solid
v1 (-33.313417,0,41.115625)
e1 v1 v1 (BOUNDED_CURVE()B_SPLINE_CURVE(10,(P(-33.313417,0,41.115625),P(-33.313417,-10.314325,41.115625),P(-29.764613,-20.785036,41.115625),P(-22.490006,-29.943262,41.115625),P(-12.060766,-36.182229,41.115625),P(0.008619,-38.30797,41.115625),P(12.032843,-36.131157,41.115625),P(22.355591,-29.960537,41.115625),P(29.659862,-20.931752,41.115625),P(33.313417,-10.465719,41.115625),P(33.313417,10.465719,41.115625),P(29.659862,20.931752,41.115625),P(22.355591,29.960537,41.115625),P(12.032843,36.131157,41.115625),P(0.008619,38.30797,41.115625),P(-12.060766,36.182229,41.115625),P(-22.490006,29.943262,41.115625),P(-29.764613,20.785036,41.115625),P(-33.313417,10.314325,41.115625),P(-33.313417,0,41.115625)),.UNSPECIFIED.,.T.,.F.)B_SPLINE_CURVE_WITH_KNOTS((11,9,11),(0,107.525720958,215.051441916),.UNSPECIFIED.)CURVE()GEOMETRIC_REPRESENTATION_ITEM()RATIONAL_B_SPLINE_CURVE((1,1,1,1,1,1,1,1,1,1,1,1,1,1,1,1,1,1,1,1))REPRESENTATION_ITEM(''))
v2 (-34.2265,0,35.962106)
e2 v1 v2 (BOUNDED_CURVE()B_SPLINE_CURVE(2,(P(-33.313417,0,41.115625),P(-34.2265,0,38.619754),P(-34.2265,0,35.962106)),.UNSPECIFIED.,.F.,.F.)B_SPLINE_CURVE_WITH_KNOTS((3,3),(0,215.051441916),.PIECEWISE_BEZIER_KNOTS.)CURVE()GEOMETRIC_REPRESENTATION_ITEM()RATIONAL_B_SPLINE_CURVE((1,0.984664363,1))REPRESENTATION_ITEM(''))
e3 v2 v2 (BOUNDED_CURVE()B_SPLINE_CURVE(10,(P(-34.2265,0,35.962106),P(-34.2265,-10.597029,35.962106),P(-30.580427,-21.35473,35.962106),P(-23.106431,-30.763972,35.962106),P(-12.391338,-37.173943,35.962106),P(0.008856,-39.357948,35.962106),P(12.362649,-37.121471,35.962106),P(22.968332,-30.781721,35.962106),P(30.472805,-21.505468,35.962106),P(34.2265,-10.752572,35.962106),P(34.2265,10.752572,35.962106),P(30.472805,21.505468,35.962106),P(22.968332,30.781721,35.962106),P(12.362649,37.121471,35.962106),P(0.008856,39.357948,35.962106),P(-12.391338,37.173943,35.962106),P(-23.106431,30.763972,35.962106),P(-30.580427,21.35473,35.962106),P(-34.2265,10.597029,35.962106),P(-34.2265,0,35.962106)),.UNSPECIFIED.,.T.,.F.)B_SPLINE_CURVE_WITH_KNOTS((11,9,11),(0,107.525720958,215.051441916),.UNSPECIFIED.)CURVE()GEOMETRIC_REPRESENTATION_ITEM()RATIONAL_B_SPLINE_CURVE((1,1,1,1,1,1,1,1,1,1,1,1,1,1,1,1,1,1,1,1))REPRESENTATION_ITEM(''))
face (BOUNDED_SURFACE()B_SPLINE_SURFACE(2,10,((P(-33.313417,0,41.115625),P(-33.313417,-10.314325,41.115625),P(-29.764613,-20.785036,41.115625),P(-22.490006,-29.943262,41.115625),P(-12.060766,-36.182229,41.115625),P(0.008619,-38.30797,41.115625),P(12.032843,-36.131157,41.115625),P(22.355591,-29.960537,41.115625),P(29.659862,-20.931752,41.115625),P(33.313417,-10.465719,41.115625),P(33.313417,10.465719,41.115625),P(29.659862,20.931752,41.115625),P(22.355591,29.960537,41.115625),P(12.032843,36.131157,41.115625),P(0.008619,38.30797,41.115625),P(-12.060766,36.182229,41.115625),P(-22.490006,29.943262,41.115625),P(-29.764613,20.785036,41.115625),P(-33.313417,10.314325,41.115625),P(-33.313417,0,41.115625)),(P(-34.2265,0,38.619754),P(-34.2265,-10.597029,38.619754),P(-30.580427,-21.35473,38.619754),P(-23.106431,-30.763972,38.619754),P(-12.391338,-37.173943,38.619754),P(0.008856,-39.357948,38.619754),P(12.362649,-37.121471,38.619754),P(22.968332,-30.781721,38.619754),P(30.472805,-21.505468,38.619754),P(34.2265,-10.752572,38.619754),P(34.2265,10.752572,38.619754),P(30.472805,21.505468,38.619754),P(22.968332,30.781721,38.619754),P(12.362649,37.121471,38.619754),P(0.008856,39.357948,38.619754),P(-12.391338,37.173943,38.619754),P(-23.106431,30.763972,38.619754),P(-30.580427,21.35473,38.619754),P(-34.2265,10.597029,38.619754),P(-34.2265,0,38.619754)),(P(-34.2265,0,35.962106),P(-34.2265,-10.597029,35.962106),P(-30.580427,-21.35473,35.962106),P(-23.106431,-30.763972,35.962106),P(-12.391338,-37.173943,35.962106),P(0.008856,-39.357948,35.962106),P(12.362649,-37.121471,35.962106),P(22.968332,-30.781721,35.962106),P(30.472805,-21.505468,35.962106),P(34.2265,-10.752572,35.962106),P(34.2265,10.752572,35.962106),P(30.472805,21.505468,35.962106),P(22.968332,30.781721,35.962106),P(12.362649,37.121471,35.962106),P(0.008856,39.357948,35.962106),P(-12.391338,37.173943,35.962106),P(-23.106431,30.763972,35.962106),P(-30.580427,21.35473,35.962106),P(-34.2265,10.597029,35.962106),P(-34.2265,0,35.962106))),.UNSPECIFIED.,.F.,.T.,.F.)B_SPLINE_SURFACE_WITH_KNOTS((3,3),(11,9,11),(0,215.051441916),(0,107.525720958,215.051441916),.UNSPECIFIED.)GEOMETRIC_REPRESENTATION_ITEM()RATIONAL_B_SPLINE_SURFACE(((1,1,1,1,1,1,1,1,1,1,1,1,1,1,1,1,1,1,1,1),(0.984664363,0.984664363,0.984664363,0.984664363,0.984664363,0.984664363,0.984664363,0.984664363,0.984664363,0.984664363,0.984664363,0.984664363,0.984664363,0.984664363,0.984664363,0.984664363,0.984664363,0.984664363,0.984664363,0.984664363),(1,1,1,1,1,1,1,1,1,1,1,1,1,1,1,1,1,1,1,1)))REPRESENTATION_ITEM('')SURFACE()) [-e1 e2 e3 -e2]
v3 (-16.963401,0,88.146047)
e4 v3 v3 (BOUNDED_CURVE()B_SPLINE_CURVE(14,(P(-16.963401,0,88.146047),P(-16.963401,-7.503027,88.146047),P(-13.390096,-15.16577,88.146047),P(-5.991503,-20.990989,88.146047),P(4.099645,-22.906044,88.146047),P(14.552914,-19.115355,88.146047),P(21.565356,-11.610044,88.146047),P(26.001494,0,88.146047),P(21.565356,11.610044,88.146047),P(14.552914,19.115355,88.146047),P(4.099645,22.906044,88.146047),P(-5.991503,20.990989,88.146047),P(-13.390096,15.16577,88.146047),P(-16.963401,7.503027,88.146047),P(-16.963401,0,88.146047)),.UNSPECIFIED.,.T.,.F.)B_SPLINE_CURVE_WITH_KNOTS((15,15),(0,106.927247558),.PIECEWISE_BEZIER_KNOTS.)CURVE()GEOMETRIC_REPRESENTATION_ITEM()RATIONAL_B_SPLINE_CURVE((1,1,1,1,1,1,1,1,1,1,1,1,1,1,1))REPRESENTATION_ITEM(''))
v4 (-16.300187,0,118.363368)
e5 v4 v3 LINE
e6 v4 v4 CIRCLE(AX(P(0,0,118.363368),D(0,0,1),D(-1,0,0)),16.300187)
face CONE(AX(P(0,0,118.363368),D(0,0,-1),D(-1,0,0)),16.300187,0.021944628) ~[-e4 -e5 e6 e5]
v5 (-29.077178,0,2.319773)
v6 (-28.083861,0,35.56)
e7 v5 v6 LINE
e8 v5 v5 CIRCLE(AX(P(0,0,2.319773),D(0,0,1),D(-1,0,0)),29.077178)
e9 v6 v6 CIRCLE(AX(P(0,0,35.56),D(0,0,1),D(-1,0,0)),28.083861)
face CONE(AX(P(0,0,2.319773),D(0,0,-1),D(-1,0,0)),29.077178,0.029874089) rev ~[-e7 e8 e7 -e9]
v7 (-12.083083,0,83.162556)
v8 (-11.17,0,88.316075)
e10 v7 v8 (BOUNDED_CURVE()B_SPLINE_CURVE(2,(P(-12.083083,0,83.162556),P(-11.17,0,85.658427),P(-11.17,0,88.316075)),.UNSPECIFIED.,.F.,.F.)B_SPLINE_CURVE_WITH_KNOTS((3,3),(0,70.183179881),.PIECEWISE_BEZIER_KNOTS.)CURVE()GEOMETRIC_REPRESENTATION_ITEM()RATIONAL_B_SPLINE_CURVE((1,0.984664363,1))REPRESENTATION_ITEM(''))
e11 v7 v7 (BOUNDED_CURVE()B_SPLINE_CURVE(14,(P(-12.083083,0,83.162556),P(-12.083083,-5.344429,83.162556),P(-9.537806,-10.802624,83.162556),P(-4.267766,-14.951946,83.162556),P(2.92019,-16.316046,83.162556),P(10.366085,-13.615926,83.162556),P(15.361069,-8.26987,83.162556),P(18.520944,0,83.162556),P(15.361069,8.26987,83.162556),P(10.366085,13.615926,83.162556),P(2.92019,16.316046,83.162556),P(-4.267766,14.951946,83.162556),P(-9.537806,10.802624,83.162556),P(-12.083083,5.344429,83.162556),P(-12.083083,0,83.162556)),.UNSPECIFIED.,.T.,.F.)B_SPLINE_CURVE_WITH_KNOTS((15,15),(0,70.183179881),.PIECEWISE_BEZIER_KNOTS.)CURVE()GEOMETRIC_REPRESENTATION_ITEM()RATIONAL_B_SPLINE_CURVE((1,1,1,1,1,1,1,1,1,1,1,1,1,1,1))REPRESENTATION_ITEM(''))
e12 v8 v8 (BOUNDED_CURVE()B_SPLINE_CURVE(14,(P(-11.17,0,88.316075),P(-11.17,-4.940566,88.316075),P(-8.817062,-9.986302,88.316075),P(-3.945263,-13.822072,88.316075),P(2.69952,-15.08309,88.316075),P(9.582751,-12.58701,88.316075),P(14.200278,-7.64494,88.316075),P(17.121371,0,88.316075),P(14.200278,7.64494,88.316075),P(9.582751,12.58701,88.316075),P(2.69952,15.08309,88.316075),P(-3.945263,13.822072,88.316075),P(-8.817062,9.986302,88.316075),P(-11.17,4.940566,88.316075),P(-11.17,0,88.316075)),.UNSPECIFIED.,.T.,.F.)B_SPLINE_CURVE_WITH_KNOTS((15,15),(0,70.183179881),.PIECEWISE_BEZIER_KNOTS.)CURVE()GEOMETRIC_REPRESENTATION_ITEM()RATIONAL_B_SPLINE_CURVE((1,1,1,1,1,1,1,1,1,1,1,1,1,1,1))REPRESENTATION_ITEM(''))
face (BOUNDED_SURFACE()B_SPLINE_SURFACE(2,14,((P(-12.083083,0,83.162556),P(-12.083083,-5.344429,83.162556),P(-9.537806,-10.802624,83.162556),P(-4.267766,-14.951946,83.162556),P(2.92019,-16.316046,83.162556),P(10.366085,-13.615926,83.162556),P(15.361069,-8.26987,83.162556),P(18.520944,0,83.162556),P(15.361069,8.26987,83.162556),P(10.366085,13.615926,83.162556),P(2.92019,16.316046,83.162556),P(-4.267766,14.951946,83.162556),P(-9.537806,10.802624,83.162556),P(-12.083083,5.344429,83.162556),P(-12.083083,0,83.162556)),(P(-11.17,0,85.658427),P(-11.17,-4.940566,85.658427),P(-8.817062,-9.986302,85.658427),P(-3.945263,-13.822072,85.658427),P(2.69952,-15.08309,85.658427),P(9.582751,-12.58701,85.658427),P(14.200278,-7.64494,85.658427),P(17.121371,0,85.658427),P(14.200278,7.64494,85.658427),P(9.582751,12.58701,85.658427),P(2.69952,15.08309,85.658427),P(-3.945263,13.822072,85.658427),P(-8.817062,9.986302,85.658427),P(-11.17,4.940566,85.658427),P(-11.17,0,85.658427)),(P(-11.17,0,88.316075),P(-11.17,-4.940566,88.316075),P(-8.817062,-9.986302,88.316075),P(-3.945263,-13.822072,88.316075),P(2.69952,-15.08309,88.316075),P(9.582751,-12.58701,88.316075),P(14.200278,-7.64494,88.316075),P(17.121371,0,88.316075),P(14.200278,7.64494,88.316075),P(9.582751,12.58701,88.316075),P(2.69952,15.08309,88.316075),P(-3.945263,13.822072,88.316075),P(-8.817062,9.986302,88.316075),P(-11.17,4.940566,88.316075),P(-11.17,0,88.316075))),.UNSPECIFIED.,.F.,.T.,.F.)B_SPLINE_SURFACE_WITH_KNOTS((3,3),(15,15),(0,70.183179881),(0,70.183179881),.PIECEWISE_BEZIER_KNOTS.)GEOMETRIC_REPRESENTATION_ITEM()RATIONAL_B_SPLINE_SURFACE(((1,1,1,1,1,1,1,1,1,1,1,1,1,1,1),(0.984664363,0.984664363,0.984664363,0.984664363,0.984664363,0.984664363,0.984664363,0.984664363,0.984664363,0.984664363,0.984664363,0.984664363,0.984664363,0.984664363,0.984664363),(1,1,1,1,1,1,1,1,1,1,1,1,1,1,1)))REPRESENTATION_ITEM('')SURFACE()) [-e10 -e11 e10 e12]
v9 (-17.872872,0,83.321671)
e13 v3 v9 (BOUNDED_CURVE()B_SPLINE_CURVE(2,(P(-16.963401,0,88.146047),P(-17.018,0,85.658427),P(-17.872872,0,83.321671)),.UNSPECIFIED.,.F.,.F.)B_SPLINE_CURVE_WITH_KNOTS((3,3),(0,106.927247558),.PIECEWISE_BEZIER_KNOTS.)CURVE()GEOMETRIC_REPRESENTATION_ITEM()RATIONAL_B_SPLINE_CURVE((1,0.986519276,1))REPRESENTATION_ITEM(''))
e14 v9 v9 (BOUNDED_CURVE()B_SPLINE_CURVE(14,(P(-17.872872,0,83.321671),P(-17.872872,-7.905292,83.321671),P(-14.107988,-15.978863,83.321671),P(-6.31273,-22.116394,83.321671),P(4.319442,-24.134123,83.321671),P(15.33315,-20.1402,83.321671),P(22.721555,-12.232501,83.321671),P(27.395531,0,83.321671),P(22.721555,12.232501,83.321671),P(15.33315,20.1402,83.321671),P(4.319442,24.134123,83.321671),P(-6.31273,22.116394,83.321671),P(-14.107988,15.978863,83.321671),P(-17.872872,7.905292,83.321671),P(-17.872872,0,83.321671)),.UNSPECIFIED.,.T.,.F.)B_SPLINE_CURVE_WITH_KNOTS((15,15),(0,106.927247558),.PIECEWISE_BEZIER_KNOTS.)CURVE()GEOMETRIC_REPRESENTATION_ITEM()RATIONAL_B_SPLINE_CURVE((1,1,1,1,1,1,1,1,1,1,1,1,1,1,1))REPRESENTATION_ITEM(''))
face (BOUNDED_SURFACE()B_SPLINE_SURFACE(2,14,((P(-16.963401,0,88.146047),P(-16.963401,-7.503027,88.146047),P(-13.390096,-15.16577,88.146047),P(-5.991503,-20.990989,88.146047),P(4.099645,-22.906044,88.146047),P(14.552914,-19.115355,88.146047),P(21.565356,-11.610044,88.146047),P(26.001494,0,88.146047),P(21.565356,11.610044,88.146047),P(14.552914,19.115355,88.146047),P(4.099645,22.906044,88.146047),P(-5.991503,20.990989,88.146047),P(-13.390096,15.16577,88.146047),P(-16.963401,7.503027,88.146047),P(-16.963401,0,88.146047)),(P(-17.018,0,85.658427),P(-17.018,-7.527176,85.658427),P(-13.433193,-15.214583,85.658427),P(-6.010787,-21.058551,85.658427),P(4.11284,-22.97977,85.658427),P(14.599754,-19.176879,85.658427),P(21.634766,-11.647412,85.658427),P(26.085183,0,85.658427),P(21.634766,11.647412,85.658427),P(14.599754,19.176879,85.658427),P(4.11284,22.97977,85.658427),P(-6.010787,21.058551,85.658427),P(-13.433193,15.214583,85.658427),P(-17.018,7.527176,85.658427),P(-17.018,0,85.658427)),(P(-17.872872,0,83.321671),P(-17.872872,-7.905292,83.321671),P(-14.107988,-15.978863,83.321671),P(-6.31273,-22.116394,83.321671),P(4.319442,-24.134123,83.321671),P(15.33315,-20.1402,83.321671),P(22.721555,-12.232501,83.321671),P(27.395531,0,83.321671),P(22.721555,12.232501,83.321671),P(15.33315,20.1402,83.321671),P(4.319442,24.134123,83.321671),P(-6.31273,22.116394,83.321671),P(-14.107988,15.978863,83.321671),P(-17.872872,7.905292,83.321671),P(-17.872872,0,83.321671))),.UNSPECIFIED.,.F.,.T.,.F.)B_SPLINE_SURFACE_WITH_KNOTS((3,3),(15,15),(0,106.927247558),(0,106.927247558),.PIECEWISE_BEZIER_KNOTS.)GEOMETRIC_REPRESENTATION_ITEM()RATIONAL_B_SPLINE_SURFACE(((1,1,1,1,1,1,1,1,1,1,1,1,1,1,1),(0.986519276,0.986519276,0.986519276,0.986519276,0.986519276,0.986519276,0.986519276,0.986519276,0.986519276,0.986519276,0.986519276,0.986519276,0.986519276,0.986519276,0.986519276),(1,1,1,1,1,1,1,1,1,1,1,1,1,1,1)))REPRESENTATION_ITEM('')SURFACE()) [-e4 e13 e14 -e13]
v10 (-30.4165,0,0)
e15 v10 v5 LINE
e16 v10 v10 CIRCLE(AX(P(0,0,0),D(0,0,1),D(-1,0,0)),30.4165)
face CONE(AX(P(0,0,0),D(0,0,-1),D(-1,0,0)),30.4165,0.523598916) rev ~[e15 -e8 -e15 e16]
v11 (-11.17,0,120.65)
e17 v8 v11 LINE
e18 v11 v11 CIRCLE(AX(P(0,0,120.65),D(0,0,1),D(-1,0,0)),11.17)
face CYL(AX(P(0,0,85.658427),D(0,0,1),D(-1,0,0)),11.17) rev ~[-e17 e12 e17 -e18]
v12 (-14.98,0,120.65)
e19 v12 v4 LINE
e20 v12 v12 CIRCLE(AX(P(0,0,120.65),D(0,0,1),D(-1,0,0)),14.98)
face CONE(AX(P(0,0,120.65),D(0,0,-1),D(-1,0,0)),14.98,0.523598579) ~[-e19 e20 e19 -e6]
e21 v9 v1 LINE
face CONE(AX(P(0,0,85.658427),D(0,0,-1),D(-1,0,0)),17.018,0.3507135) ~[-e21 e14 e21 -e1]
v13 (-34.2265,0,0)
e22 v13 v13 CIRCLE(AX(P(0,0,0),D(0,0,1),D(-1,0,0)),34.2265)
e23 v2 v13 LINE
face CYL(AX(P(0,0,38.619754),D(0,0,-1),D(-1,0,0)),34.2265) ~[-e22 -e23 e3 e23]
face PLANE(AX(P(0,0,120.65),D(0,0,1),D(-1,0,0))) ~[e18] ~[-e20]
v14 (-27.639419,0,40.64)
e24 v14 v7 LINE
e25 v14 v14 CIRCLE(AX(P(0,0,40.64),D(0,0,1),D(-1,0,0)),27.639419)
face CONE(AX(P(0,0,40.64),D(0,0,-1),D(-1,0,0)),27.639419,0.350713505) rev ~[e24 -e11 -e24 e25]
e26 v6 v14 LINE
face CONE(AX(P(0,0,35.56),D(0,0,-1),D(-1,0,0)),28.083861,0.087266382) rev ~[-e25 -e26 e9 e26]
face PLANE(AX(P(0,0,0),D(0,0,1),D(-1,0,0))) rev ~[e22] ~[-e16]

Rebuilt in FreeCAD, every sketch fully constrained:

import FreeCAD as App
import Part
import Sketcher
from FreeCAD import Vector
Q = App.Units.Quantity


def edges_at(feature, points):
    """Names of the edges that pass closest to the given points."""
    edges = feature.Shape.Edges
    near = lambda p: min(range(len(edges)), key=lambda i: edges[i].distToShape(Part.Vertex(*p))[0])
    return sorted({f"Edge{near(p) + 1}" for p in points})


def add_polygon(sketch, points):
    """Adds a closed chain of lines whose ends are joined by coincident constraints."""
    first, n = sketch.GeometryCount, len(points)
    for a, b in zip(points, points[1:] + points[:1]):
        sketch.addGeometry(Part.LineSegment(App.Vector(*a, 0), App.Vector(*b, 0)), False)
    for i in range(n):
        sketch.addConstraint(Sketcher.Constraint("Coincident", first + i, 2, first + (i + 1) % n, 1))

doc = App.newDocument("Part")
body = doc.addObject("PartDesign::Body", "Body")

# Sketch on XZ plane
sketch1 = doc.addObject("Sketcher::SketchObject", "Sketch")
body.addObject(sketch1)
sketch1.AttachmentSupport = (doc.XZ_Plane, [""])
sketch1.MapMode = "FlatFace"
add_polygon(sketch1, [(-34.2, 0), (-30.4, 0), (-29.1, 2.3), (-28.1, 35.6), (-27.6, 40.6), (-11.2, 85.7), (-11.2, 120.7), (-15, 120.7), (-16.3, 118.4), (-17, 85.7), (-34.2, 38.6)])  # lines 0-10
sketch1.addConstraint(Sketcher.Constraint("Horizontal", 0))
sketch1.addConstraint(Sketcher.Constraint("Vertical", 5))
sketch1.addConstraint(Sketcher.Constraint("Horizontal", 6))
sketch1.addConstraint(Sketcher.Constraint("Vertical", 10))
sketch1.addConstraint(Sketcher.Constraint("PointOnObject", 0, 2, -1))
sketch1.addConstraint(Sketcher.Constraint("Parallel", 1, 7))
sketch1.addConstraint(Sketcher.Constraint("Parallel", 4, 9))
sketch1.addConstraint(Sketcher.Constraint("Horizontal", 4, 2, 8, 2))
sketch1.addConstraint(Sketcher.Constraint("Equal", 0, 6))
sketch1.addConstraint(Sketcher.Constraint("Angle", 1, Q("59.999992 deg")))
sketch1.addConstraint(Sketcher.Constraint("Angle", 3, Q("85.000005 deg")))
sketch1.addConstraint(Sketcher.Constraint("DistanceX", 0, 1, 0, 2, Q("3.81 mm")))
sketch1.addConstraint(Sketcher.Constraint("DistanceY", -1, 1, 2, 2, Q("35.56 mm")))
sketch1.addConstraint(Sketcher.Constraint("DistanceY", -1, 1, 3, 2, Q("40.64 mm")))
sketch1.addConstraint(Sketcher.Constraint("DistanceX", 4, 2, -1, 1, Q("11.17 mm")))
sketch1.addConstraint(Sketcher.Constraint("DistanceY", -1, 1, 5, 2, Q("120.65 mm")))
sketch1.addConstraint(Sketcher.Constraint("DistanceX", 8, 2, -1, 1, Q("17.018 mm")))
sketch1.addConstraint(Sketcher.Constraint("DistanceX", 0, 2, -1, 1, Q("30.4165 mm")))
sketch1.addConstraint(Sketcher.Constraint("Distance", 4, Q("47.936422 mm")))
sketch1.addConstraint(Sketcher.Constraint("DistanceY", 5, 1, 5, 2, Q("34.991573 mm")))
sketch1.addConstraint(Sketcher.Constraint("DistanceX", 1, 2, -1, 1, Q("29.077178 mm")))
sketch1.addConstraint(Sketcher.Constraint("DistanceY", 4, 2, 7, 2, Q("32.704941 mm")))
revolution = doc.addObject("PartDesign::Revolution", "Revolution")
body.addObject(revolution)
revolution.Profile = sketch1
revolution.ReferenceAxis = (sketch1, ["V_Axis"])
revolution.Angle = 360
doc.recompute()

fillet = doc.addObject("PartDesign::Fillet", "Fillet")
body.addObject(fillet)
fillet.Base = (revolution, edges_at(revolution, [(34.227, 0, 38.62), (17.018, 0, 85.658), (11.17, 0, 85.658)]))
fillet.Radius = 15

doc.recompute()
